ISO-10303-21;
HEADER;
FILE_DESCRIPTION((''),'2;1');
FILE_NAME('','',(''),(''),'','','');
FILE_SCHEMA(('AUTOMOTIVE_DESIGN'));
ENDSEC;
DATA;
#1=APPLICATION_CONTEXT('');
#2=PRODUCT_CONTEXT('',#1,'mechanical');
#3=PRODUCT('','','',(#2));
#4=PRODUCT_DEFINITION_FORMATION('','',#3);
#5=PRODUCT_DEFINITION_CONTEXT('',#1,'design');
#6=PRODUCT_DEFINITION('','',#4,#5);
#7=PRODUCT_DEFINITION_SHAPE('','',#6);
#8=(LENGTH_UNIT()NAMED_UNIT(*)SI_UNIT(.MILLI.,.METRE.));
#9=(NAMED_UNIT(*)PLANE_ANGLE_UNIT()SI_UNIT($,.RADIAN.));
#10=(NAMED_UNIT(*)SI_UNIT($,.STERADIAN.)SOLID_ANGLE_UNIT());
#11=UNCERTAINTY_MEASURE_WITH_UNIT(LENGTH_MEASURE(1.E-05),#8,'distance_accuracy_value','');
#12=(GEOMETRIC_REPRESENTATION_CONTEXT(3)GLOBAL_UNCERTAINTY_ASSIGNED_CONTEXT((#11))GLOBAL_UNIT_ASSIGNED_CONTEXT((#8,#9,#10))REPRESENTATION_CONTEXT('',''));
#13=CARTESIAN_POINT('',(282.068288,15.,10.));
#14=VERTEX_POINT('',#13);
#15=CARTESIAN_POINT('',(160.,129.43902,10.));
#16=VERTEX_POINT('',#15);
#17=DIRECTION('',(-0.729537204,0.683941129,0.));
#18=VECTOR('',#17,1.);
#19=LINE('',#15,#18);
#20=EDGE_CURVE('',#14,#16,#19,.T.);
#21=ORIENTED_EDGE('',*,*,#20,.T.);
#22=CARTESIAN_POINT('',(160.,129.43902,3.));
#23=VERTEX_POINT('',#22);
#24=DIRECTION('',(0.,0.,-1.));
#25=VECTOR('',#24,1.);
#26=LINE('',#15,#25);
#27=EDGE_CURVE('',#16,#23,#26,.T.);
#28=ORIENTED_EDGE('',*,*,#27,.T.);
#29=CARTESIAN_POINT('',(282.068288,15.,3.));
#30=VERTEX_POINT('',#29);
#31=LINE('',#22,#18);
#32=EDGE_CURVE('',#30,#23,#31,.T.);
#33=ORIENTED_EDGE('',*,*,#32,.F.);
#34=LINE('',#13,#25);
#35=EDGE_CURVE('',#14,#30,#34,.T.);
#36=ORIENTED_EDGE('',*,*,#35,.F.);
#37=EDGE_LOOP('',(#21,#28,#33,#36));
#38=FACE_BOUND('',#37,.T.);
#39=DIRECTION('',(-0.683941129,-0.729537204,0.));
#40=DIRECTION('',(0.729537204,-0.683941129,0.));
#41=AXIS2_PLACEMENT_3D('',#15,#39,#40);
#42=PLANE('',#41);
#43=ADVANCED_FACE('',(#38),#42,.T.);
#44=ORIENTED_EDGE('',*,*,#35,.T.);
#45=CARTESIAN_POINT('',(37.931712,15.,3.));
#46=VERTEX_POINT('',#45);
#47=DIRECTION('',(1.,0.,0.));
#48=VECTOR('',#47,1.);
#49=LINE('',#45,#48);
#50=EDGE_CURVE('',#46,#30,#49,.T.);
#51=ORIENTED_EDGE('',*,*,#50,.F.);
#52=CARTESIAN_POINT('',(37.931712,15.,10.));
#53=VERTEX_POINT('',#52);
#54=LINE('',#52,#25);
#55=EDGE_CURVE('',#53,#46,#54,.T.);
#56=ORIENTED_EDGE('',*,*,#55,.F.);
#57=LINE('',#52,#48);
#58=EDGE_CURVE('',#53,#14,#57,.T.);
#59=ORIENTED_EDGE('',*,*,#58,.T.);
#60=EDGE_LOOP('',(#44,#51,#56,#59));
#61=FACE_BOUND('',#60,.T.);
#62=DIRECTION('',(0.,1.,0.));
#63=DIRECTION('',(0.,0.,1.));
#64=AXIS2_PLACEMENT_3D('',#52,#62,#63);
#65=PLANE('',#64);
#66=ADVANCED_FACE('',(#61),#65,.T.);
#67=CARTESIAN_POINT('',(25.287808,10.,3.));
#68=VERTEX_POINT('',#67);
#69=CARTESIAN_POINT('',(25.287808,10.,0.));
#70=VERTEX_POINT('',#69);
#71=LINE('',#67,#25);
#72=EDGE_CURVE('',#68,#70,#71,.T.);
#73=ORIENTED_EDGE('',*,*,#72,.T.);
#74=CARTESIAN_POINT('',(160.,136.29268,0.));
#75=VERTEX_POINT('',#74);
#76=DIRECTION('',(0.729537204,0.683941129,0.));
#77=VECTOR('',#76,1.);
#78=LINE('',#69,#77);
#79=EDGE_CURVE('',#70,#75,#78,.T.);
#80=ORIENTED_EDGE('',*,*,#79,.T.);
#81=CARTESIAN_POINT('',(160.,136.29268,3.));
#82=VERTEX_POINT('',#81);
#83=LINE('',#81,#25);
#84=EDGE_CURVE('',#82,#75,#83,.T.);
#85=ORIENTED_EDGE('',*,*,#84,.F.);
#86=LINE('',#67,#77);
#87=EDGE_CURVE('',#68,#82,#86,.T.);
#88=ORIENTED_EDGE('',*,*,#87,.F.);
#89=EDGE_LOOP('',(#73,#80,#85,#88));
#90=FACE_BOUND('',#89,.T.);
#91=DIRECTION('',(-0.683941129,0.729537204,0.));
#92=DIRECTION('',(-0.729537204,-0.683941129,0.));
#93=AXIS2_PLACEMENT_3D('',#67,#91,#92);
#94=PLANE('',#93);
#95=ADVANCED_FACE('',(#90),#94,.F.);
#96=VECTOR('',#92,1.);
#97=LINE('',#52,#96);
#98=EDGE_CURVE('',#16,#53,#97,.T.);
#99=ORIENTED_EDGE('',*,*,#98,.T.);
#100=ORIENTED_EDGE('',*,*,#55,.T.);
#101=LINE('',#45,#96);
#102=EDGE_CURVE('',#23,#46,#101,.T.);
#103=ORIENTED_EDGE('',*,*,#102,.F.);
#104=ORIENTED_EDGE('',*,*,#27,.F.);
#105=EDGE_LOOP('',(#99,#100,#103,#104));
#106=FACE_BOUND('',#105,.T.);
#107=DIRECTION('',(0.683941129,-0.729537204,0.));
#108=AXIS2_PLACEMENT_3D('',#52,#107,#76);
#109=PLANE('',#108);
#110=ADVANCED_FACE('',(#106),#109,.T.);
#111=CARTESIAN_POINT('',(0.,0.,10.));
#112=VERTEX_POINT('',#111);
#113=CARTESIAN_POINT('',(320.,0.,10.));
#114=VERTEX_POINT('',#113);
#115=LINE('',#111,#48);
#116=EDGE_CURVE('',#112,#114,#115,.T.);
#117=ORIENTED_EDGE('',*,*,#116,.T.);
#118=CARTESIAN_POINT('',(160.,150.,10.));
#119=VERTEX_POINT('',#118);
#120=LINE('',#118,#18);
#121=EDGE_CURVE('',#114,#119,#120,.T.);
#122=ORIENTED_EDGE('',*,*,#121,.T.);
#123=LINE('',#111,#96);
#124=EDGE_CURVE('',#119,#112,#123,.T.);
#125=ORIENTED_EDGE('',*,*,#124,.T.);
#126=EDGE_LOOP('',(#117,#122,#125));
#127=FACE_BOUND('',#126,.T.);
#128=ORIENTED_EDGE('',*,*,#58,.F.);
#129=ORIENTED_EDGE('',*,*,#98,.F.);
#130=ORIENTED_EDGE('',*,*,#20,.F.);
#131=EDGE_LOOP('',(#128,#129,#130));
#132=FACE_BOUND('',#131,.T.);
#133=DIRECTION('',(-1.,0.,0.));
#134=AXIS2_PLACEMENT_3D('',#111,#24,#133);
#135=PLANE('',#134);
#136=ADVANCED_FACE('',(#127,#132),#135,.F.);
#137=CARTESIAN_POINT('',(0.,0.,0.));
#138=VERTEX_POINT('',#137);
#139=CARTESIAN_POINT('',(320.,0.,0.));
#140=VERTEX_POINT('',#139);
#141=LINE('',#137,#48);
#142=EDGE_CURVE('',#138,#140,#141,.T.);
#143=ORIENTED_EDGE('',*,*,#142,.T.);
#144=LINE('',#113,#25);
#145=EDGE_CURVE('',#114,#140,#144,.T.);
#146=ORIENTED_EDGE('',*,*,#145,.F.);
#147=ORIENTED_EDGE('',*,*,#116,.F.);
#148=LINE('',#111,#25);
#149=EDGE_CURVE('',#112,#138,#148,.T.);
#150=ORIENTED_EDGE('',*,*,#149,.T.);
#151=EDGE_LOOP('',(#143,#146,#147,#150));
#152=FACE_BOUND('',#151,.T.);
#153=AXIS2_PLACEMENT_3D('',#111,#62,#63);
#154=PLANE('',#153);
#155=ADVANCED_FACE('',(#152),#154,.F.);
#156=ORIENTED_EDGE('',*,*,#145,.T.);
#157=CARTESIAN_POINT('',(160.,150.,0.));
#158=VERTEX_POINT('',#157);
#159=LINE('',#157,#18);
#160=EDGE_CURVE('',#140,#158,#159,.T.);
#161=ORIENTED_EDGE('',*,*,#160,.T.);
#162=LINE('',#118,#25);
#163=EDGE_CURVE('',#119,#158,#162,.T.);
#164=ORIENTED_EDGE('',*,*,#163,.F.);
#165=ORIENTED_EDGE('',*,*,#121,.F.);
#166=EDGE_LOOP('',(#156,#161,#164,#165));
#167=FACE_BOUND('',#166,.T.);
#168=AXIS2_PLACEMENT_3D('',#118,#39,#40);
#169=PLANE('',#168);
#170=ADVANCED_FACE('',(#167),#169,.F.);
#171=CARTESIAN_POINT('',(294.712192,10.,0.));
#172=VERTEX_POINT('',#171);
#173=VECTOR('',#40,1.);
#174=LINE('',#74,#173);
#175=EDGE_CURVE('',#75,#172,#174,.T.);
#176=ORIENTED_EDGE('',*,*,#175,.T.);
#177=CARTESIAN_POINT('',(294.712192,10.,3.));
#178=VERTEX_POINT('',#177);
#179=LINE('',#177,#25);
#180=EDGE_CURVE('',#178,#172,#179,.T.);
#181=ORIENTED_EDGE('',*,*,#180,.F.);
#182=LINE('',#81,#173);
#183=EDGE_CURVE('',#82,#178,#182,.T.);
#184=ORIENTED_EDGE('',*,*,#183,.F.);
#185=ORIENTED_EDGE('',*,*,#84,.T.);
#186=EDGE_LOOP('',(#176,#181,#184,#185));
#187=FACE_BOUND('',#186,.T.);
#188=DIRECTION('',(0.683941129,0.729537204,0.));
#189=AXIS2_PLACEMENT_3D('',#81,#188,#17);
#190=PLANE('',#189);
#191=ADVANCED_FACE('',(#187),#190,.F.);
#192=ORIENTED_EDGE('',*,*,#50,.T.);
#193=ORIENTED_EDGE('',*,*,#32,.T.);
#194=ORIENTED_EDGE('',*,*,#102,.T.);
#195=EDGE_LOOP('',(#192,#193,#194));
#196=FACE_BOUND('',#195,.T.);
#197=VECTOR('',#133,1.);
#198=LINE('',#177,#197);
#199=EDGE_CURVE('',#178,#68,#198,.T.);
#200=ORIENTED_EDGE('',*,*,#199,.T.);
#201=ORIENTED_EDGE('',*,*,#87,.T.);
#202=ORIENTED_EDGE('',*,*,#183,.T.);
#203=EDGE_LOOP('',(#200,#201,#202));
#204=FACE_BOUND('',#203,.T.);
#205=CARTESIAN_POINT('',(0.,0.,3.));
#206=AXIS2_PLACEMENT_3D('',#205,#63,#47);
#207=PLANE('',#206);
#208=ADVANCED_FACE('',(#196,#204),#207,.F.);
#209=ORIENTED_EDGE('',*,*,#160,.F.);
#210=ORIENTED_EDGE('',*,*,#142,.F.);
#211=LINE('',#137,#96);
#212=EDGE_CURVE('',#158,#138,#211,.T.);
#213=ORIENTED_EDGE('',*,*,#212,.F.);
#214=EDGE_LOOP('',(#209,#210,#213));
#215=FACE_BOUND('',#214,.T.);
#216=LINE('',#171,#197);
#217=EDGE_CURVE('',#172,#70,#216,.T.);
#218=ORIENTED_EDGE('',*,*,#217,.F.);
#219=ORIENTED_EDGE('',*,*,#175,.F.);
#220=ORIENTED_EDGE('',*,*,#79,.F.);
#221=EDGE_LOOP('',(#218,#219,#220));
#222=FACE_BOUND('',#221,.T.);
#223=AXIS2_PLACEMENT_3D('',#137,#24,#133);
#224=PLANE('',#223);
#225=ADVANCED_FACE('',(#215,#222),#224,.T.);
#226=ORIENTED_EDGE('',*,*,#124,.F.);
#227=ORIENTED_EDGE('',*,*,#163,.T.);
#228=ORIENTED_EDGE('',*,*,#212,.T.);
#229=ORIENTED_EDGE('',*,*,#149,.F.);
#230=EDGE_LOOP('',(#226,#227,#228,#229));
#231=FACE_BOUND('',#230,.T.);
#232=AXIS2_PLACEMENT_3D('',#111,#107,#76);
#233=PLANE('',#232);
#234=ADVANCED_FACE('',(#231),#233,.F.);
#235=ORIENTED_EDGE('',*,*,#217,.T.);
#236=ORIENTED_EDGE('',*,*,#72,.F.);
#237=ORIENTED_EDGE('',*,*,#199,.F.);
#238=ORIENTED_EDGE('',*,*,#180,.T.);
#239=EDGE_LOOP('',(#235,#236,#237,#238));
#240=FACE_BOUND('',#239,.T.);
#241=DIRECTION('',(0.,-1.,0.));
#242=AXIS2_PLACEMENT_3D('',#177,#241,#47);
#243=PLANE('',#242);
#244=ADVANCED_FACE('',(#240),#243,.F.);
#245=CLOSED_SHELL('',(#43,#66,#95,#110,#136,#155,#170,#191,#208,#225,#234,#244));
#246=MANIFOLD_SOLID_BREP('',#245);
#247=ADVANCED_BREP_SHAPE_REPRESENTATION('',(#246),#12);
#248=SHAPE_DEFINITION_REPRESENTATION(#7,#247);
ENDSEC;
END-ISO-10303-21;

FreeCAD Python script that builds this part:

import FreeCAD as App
import Part
import Sketcher
from FreeCAD import Vector


def add_polygon(sketch, points):
    """Adds a closed chain of lines whose ends are joined by coincident constraints."""
    first, n = sketch.GeometryCount, len(points)
    for a, b in zip(points, points[1:] + points[:1]):
        sketch.addGeometry(Part.LineSegment(App.Vector(*a, 0), App.Vector(*b, 0)), False)
    for i in range(n):
        sketch.addConstraint(Sketcher.Constraint("Coincident", first + i, 2, first + (i + 1) % n, 1))

doc = App.newDocument("Part")
body = doc.addObject("PartDesign::Body", "Body")

sketch1 = body.newObject("Sketcher::SketchObject", "Sketch")
sketch1.AttachmentSupport = (doc.getObject("XY_Plane"), [""])
sketch1.MapMode = "FlatFace"
add_polygon(sketch1, [(0, 0), (320, 0), (160, 150)])
add_polygon(sketch1, [(37.931712, 15), (160, 129.43902), (282.068288, 15)])
sketch1.addConstraint(Sketcher.Constraint("Horizontal", 0))
sketch1.addConstraint(Sketcher.Constraint("Horizontal", 5))
sketch1.addConstraint(Sketcher.Constraint("Coincident", 2, 2, -1, 1))
sketch1.addConstraint(Sketcher.Constraint("Parallel", 2, 3))
sketch1.addConstraint(Sketcher.Constraint("Parallel", 1, 4))
sketch1.addConstraint(Sketcher.Constraint("Vertical", 1, 2, 3, 2))
sketch1.addConstraint(Sketcher.Constraint("Equal", 1, 2))
sketch1.addConstraint(Sketcher.Constraint("DistanceX", 0, 1, 0, 2, 320.0))
sketch1.addConstraint(Sketcher.Constraint("DistanceY", -1, 1, 1, 2, 150.0))
sketch1.addConstraint(Sketcher.Constraint("DistanceY", -1, 1, 4, 2, 15.0))
sketch1.addConstraint(Sketcher.Constraint("Distance", 3, 167.32291))
pad1 = body.newObject("PartDesign::Pad", "Pad")
pad1.Profile = sketch1
pad1.Length = 10

sketch2 = body.newObject("Sketcher::SketchObject", "Sketch001")
sketch2.AttachmentSupport = (doc.getObject("XY_Plane"), [""])
sketch2.MapMode = "FlatFace"
add_polygon(sketch2, [(294.712192, 10), (25.287808, 10), (160, 136.29268)])
sketch2.addConstraint(Sketcher.Constraint("Horizontal", 0))
sketch2.addConstraint(Sketcher.Constraint("Equal", 1, 2))
sketch2.addConstraint(Sketcher.Constraint("DistanceY", -1, 1, 0, 2, 10.0))
sketch2.addConstraint(Sketcher.Constraint("DistanceX", -1, 1, 1, 2, 160.0))
sketch2.addConstraint(Sketcher.Constraint("DistanceX", 0, 2, 0, 1, 269.424384))
sketch2.addConstraint(Sketcher.Constraint("DistanceY", -1, 1, 1, 2, 136.29268))
pocket1 = body.newObject("PartDesign::Pocket", "Pocket")
pocket1.Profile = sketch2
pocket1.Length = 3
pocket1.Reversed = True

doc.recompute()
